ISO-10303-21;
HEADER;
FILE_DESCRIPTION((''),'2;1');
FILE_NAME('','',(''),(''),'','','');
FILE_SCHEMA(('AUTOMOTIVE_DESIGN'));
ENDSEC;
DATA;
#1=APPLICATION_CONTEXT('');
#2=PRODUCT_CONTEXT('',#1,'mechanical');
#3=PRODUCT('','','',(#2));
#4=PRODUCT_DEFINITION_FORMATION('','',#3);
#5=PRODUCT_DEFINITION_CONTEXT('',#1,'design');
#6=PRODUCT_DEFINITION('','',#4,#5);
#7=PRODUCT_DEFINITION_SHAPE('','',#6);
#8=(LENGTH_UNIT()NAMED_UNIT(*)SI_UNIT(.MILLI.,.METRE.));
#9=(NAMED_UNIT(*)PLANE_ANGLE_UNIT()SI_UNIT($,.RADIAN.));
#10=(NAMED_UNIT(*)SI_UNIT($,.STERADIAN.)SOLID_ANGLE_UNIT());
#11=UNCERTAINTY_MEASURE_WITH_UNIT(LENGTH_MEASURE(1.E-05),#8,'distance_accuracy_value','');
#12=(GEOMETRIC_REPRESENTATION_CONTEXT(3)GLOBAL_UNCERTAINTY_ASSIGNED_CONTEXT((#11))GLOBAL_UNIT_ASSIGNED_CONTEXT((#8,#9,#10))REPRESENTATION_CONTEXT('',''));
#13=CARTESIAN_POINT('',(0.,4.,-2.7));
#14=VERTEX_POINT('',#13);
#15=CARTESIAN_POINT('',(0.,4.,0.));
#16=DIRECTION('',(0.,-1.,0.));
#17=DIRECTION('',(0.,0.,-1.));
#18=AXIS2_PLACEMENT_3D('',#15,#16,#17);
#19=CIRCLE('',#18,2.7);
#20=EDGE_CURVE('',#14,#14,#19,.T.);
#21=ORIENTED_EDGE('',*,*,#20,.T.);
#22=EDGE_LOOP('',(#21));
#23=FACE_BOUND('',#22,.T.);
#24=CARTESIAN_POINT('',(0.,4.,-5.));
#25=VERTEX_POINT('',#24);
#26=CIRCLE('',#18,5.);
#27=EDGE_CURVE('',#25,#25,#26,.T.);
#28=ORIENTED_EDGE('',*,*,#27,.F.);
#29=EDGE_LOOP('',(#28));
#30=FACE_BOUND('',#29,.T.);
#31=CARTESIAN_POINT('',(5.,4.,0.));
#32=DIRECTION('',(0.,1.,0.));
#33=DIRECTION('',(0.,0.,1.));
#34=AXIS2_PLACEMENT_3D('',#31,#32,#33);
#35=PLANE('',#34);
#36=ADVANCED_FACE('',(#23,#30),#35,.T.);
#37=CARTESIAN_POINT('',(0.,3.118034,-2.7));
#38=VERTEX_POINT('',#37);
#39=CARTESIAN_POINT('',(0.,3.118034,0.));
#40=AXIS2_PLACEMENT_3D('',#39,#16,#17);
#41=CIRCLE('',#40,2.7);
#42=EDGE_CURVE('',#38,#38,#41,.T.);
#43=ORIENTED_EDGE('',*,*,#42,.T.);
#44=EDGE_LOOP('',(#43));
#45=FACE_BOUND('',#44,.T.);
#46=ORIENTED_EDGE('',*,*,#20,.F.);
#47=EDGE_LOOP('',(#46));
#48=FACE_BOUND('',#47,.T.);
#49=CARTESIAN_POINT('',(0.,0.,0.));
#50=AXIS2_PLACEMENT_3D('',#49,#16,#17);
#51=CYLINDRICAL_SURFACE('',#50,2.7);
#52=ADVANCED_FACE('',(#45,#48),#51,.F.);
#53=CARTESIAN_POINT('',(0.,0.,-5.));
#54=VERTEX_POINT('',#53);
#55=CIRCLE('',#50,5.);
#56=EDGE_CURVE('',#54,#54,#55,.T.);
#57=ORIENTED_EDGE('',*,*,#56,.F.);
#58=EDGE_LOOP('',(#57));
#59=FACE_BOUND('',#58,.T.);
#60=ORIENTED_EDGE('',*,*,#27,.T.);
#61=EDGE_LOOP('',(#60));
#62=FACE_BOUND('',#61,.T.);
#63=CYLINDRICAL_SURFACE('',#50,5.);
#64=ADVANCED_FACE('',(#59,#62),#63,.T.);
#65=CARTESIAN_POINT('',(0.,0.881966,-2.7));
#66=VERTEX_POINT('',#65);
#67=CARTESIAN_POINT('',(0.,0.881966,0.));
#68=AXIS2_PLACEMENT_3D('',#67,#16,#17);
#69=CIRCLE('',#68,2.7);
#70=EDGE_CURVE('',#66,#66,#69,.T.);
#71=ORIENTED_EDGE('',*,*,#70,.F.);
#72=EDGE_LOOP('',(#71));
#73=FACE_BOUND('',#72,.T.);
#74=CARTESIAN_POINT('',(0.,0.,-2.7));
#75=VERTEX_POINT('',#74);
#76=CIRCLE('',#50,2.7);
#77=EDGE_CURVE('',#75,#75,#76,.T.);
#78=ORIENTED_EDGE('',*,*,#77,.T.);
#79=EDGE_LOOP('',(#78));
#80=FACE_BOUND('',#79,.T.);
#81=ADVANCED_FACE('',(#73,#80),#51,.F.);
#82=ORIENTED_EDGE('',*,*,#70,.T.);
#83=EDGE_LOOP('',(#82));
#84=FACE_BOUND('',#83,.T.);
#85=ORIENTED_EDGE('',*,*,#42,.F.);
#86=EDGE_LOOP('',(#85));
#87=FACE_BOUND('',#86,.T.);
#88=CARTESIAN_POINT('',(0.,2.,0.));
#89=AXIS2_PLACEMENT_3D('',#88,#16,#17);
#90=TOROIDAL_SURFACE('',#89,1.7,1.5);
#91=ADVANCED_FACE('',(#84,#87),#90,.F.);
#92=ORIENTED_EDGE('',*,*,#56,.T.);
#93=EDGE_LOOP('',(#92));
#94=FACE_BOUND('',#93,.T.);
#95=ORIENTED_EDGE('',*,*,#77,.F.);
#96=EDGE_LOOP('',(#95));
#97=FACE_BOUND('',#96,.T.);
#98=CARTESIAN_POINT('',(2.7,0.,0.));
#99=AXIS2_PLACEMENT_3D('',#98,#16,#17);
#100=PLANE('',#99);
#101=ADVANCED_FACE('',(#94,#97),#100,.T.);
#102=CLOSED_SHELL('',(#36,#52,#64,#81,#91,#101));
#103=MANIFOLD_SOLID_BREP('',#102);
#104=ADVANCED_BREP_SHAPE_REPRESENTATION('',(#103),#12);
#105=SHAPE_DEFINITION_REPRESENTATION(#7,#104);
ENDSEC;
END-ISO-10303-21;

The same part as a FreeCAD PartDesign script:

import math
import FreeCAD as App
import Part
import Sketcher
from FreeCAD import Vector

doc = App.newDocument("Part")
body = doc.addObject("PartDesign::Body", "Body")

sketch1 = doc.addObject("Sketcher::SketchObject", "Sketch")
body.addObject(sketch1)
sketch1.AttachmentSupport = (doc.XY_Plane, [""])
sketch1.MapMode = "FlatFace"
sketch1.addGeometry([
    Part.LineSegment(Vector(2.7, 4, 0), Vector(2.7, 3.1, 0)),
    Part.ArcOfCircle(Part.Circle(Vector(1.7, 2, 0), Vector(0, 0, 1), 1.5), math.radians(-48), math.radians(48)),
    Part.LineSegment(Vector(2.7, 0.9, 0), Vector(2.7, 0, 0)),
    Part.LineSegment(Vector(2.7, 0, 0), Vector(5, 0, 0)),
    Part.LineSegment(Vector(5, 0, 0), Vector(5, 4, 0)),
    Part.LineSegment(Vector(5, 4, 0), Vector(2.7, 4, 0)),
], False)
sketch1.addConstraint([
    Sketcher.Constraint("Coincident", 0, 2, 1, 2),
    Sketcher.Constraint("Coincident", 1, 1, 2, 1),
    Sketcher.Constraint("Coincident", 2, 2, 3, 1),
    Sketcher.Constraint("Coincident", 3, 2, 4, 1),
    Sketcher.Constraint("Coincident", 4, 2, 5, 1),
    Sketcher.Constraint("Coincident", 5, 2, 0, 1),
    Sketcher.Constraint("Vertical", 0),
    Sketcher.Constraint("Vertical", 2),
    Sketcher.Constraint("Horizontal", 3),
    Sketcher.Constraint("Vertical", 4),
    Sketcher.Constraint("Horizontal", 5),
    Sketcher.Constraint("PointOnObject", 2, 2, -1),
    Sketcher.Constraint("Vertical", 0, 2, 1, 1),
    Sketcher.Constraint("Equal", 0, 2),
    Sketcher.Constraint("Radius", 1, 1.5),
    Sketcher.Constraint("DistanceY", 4, 1, 4, 2, 4.0),
    Sketcher.Constraint("DistanceX", 3, 1, 3, 2, 2.3),
    Sketcher.Constraint("DistanceX", -1, 1, 3, 2, 5.0),
    Sketcher.Constraint("DistanceX", 1, 3, 0, 2, 1.0),
])
revolution = doc.addObject("PartDesign::Revolution", "Revolution")
body.addObject(revolution)
revolution.Profile = sketch1
revolution.ReferenceAxis = (sketch1, ["V_Axis"])
revolution.Angle = 360

doc.recompute()
